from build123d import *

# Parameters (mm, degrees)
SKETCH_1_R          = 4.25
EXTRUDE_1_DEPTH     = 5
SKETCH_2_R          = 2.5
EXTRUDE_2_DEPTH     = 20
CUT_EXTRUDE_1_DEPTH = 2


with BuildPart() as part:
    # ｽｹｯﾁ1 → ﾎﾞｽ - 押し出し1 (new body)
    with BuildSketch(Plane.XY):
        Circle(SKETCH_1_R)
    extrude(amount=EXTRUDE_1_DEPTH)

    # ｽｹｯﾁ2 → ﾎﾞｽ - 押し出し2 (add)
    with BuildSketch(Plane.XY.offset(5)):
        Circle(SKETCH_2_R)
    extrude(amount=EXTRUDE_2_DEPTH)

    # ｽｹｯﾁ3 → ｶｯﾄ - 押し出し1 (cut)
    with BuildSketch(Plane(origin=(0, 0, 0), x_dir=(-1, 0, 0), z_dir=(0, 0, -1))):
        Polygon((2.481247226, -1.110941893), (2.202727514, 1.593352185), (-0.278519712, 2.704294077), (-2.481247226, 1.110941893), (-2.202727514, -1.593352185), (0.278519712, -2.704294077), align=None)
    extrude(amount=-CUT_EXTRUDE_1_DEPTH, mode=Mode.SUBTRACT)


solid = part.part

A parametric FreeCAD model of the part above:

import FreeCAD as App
import Part
import Sketcher

doc = App.newDocument("Part")
body = doc.addObject("PartDesign::Body", "Body")

# Sketch on XY plane
sketch1 = body.newObject("Sketcher::SketchObject", "Sketch")
sketch1.AttachmentSupport = (doc.getObject("XY_Plane"), [""])
sketch1.MapMode = "FlatFace"
sketch1.addGeometry(Part.Circle(App.Vector(0, 0, 0), App.Vector(0, 0, 1), 4.2), False)
sketch1.addConstraint([
    Sketcher.Constraint("Coincident", 0, 3, -1, 1),
    Sketcher.Constraint("Diameter", 0, 8.5),
])
pad1 = body.newObject("PartDesign::Pad", "Pad")
pad1.Profile = sketch1
pad1.Length = 5

# Sketch on XY plane
sketch2 = body.newObject("Sketcher::SketchObject", "Sketch001")
sketch2.AttachmentSupport = (doc.getObject("XY_Plane"), [""])
sketch2.MapMode = "FlatFace"
sketch2.AttachmentOffset = App.Placement(App.Vector(0, 0, 5), App.Rotation())
sketch2.addGeometry(Part.Circle(App.Vector(0, 0, 0), App.Vector(0, 0, 1), 2.5), False)
sketch2.addConstraint([
    Sketcher.Constraint("Coincident", 0, 3, -1, 1),
    Sketcher.Constraint("Diameter", 0, 5.0),
])
pad2 = body.newObject("PartDesign::Pad", "Pad001")
pad2.Profile = sketch2
pad2.Length = 20

# Sketch on XY plane
sketch3 = body.newObject("Sketcher::SketchObject", "Sketch002")
sketch3.AttachmentSupport = (doc.getObject("XY_Plane"), [""])
sketch3.MapMode = "FlatFace"
sketch3.addGeometry([
    Part.LineSegment(App.Vector(-2.5, -1.1, 0), App.Vector(-2.2, 1.6, 0)),  # 0
    Part.LineSegment(App.Vector(-2.2, 1.6, 0), App.Vector(0.3, 2.7, 0)),  # 1
    Part.LineSegment(App.Vector(0.3, 2.7, 0), App.Vector(2.5, 1.1, 0)),  # 2
    Part.LineSegment(App.Vector(2.5, 1.1, 0), App.Vector(2.2, -1.6, 0)),  # 3
    Part.LineSegment(App.Vector(2.2, -1.6, 0), App.Vector(-0.3, -2.7, 0)),  # 4
    Part.LineSegment(App.Vector(-0.3, -2.7, 0), App.Vector(-2.5, -1.1, 0)),  # 5
], False)
sketch3.addConstraint([
    Sketcher.Constraint("Coincident", 0, 2, 1, 1),
    Sketcher.Constraint("Coincident", 1, 2, 2, 1),
    Sketcher.Constraint("Coincident", 2, 2, 3, 1),
    Sketcher.Constraint("Coincident", 3, 2, 4, 1),
    Sketcher.Constraint("Coincident", 4, 2, 5, 1),
    Sketcher.Constraint("Coincident", 5, 2, 0, 1),
    Sketcher.Constraint("Symmetric", 0, 2, 3, 2, -1, 1),
    Sketcher.Constraint("Symmetric", 1, 2, 4, 2, -1, 1),
    Sketcher.Constraint("Symmetric", 2, 2, 5, 2, -1, 1),
    Sketcher.Constraint("Equal", 0, 1),
    Sketcher.Constraint("Equal", 1, 2),
    Sketcher.Constraint("Distance", 0, 2.718599),
    Sketcher.Constraint("DistanceX", -1, 1, 1, 2, 0.27852),
    Sketcher.Constraint("DistanceY", -1, 1, 2, 2, 1.110942),
    Sketcher.Constraint("DistanceY", 0, 2, 1, 2, 1.110942),
])
pocket1 = body.newObject("PartDesign::Pocket", "Pocket")
pocket1.Profile = sketch3
pocket1.Length = 2
pocket1.Reversed = True

doc.recompute()
